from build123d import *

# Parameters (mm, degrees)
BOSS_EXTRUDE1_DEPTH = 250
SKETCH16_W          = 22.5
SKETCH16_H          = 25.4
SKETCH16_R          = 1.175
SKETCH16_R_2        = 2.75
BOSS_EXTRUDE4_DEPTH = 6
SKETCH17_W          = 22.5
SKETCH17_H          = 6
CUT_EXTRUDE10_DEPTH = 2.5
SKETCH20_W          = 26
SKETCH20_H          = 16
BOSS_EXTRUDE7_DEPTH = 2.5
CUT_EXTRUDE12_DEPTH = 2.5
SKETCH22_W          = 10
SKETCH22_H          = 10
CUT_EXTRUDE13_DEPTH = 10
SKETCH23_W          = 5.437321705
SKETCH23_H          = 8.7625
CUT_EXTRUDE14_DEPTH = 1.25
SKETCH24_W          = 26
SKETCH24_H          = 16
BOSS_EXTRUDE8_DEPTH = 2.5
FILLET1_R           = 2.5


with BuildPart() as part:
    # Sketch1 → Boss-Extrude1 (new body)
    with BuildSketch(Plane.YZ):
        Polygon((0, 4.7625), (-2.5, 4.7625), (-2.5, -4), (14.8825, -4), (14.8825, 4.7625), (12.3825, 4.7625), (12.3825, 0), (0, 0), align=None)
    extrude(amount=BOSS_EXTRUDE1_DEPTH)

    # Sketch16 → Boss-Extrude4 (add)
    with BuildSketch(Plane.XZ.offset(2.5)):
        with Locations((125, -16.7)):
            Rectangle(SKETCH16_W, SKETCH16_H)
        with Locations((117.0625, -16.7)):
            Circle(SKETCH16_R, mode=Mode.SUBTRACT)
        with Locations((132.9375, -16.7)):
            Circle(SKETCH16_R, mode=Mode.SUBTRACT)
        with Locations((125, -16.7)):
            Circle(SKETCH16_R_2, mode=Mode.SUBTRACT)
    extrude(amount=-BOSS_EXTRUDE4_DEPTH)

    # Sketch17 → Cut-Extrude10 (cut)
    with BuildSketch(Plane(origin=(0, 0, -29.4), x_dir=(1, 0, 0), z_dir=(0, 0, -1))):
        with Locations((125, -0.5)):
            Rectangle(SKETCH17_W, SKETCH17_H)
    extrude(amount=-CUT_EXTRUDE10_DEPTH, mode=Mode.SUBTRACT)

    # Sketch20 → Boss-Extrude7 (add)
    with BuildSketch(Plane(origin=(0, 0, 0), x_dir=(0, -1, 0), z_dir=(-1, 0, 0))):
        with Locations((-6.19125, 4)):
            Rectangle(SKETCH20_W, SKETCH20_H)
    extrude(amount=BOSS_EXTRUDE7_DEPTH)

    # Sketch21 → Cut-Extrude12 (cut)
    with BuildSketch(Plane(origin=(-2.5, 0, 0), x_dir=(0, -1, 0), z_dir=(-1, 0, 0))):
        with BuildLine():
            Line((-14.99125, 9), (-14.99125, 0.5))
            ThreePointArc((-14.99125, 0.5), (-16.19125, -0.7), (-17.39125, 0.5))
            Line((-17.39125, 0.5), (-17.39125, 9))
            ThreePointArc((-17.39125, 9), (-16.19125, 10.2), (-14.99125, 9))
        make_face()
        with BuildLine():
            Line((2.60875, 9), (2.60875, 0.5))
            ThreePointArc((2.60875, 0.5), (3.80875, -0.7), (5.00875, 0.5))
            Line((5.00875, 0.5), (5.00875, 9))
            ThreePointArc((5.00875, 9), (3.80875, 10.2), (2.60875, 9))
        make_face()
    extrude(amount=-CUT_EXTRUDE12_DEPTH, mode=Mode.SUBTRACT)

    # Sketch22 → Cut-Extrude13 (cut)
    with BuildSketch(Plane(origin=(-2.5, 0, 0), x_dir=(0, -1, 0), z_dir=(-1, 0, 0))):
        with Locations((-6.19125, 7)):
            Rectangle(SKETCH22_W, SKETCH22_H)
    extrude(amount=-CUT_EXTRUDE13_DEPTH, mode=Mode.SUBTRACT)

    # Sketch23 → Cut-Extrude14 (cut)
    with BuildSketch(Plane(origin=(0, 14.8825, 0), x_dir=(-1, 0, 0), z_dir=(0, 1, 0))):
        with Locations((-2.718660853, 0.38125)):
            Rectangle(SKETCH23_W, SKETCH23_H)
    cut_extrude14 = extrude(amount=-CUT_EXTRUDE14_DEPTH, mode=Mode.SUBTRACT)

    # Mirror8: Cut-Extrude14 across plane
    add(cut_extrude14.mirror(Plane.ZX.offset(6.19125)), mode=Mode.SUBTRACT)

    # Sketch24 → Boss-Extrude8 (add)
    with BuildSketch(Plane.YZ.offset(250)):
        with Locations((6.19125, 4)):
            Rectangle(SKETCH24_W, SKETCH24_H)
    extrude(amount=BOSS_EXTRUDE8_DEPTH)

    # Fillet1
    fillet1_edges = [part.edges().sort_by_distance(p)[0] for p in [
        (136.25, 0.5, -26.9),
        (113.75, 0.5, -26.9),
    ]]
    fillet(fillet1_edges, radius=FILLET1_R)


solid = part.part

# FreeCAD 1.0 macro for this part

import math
import FreeCAD as App
import Part
import Sketcher


def edges_at(feature, points):
    """Names of the edges that pass closest to the given points."""
    edges = feature.Shape.Edges
    near = lambda p: min(range(len(edges)), key=lambda i: edges[i].distToShape(Part.Vertex(*p))[0])
    return sorted({f"Edge{near(p) + 1}" for p in points})

doc = App.newDocument("Part")
body = doc.addObject("PartDesign::Body", "Body")

# Sketch on YZ plane
sketch1 = body.newObject("Sketcher::SketchObject", "Sketch")
sketch1.AttachmentSupport = (doc.getObject("YZ_Plane"), [""])
sketch1.MapMode = "FlatFace"
sketch1.addGeometry([
    Part.LineSegment(App.Vector(0, 4.8, 0), App.Vector(-2.5, 4.8, 0)),  # 0
    Part.LineSegment(App.Vector(-2.5, 4.8, 0), App.Vector(-2.5, -4, 0)),  # 1
    Part.LineSegment(App.Vector(-2.5, -4, 0), App.Vector(14.9, -4, 0)),  # 2
    Part.LineSegment(App.Vector(14.9, -4, 0), App.Vector(14.9, 4.8, 0)),  # 3
    Part.LineSegment(App.Vector(14.9, 4.8, 0), App.Vector(12.4, 4.8, 0)),  # 4
    Part.LineSegment(App.Vector(12.4, 4.8, 0), App.Vector(12.4, 0, 0)),  # 5
    Part.LineSegment(App.Vector(12.4, 0, 0), App.Vector(0, 0, 0)),  # 6
    Part.LineSegment(App.Vector(0, 0, 0), App.Vector(0, 4.8, 0)),  # 7
], False)
sketch1.addConstraint([
    Sketcher.Constraint("Coincident", 0, 2, 1, 1),
    Sketcher.Constraint("Coincident", 1, 2, 2, 1),
    Sketcher.Constraint("Coincident", 2, 2, 3, 1),
    Sketcher.Constraint("Coincident", 3, 2, 4, 1),
    Sketcher.Constraint("Coincident", 4, 2, 5, 1),
    Sketcher.Constraint("Coincident", 5, 2, 6, 1),
    Sketcher.Constraint("Coincident", 6, 2, 7, 1),
    Sketcher.Constraint("Coincident", 7, 2, 0, 1),
    Sketcher.Constraint("Horizontal", 0),
    Sketcher.Constraint("Vertical", 1),
    Sketcher.Constraint("Horizontal", 2),
    Sketcher.Constraint("Vertical", 3),
    Sketcher.Constraint("Horizontal", 4),
    Sketcher.Constraint("Vertical", 5),
    Sketcher.Constraint("Horizontal", 6),
    Sketcher.Constraint("Vertical", 7),
    Sketcher.Constraint("Coincident", 6, 2, -1, 1),
    Sketcher.Constraint("Horizontal", 0, 2, 3, 2),
    Sketcher.Constraint("Equal", 0, 4),
    Sketcher.Constraint("DistanceX", 0, 2, 0, 1, 2.5),
    Sketcher.Constraint("DistanceY", 1, 2, -1, 1, 4.0),
    Sketcher.Constraint("DistanceX", 2, 1, 2, 2, 17.3825),
    Sketcher.Constraint("DistanceY", 1, 2, 1, 1, 8.7625),
])
pad1 = body.newObject("PartDesign::Pad", "Pad")
pad1.Profile = sketch1
pad1.Length = 250

# Sketch on XZ plane
sketch2 = body.newObject("Sketcher::SketchObject", "Sketch001")
sketch2.AttachmentSupport = (doc.getObject("XZ_Plane"), [""])
sketch2.MapMode = "FlatFace"
sketch2.AttachmentOffset = App.Placement(App.Vector(0, 0, 2.5), App.Rotation())
sketch2.addGeometry([
    Part.LineSegment(App.Vector(113.8, -4, 0), App.Vector(113.8, -29.4, 0)),  # 0
    Part.LineSegment(App.Vector(113.8, -29.4, 0), App.Vector(136.2, -29.4, 0)),  # 1
    Part.LineSegment(App.Vector(136.2, -29.4, 0), App.Vector(136.2, -4, 0)),  # 2
    Part.LineSegment(App.Vector(136.2, -4, 0), App.Vector(113.8, -4, 0)),  # 3
    Part.Circle(App.Vector(117.1, -16.7, 0), App.Vector(0, 0, 1), 1.2),  # 4
    Part.Circle(App.Vector(125, -16.7, 0), App.Vector(0, 0, 1), 2.8),  # 5
    Part.Circle(App.Vector(132.9, -16.7, 0), App.Vector(0, 0, 1), 1.2),  # 6
], False)
sketch2.addConstraint([
    Sketcher.Constraint("Coincident", 0, 2, 1, 1),
    Sketcher.Constraint("Coincident", 1, 2, 2, 1),
    Sketcher.Constraint("Coincident", 2, 2, 3, 1),
    Sketcher.Constraint("Coincident", 3, 2, 0, 1),
    Sketcher.Constraint("Vertical", 0),
    Sketcher.Constraint("Horizontal", 1),
    Sketcher.Constraint("Vertical", 2),
    Sketcher.Constraint("Horizontal", 3),
    Sketcher.Constraint("Equal", 4, 6),
    Sketcher.Constraint("Horizontal", 4, 3, 5, 3),
    Sketcher.Constraint("Horizontal", 5, 3, 6, 3),
    Sketcher.Constraint("Diameter", 5, 5.5),
    Sketcher.Constraint("Diameter", 4, 2.35),
    Sketcher.Constraint("DistanceX", 1, 1, 1, 2, 22.5),
    Sketcher.Constraint("DistanceY", 0, 2, 0, 1, 25.4),
    Sketcher.Constraint("DistanceX", -1, 1, 5, 3, 125.0),
    Sketcher.Constraint("DistanceY", 2, 2, -1, 1, 4.0),
    Sketcher.Constraint("DistanceY", 4, 3, -1, 1, 16.7),
    Sketcher.Constraint("DistanceX", -1, 1, 0, 2, 113.75),
    Sketcher.Constraint("DistanceX", 4, 3, 6, 3, 15.875),
    Sketcher.Constraint("DistanceX", -1, 1, 4, 3, 117.0625),
])
pad2 = body.newObject("PartDesign::Pad", "Pad001")
pad2.Profile = sketch2
pad2.Length = 6
pad2.Reversed = True

# Sketch on XY plane
sketch3 = body.newObject("Sketcher::SketchObject", "Sketch002")
sketch3.AttachmentSupport = (doc.getObject("XY_Plane"), [""])
sketch3.MapMode = "FlatFace"
sketch3.AttachmentOffset = App.Placement(App.Vector(0, 0, -29.4), App.Rotation())
sketch3.addGeometry([
    Part.LineSegment(App.Vector(114, -2, 0), App.Vector(114, 4, 0)),
    Part.LineSegment(App.Vector(114, 4, 0), App.Vector(136, 4, 0)),
    Part.LineSegment(App.Vector(136, 4, 0), App.Vector(136, -2, 0)),
    Part.LineSegment(App.Vector(136, -2, 0), App.Vector(114, -2, 0)),
], False)
sketch3.addConstraint([
    Sketcher.Constraint("Coincident", 0, 2, 1, 1),
    Sketcher.Constraint("Coincident", 1, 2, 2, 1),
    Sketcher.Constraint("Coincident", 2, 2, 3, 1),
    Sketcher.Constraint("Coincident", 3, 2, 0, 1),
    Sketcher.Constraint("Vertical", 0),
    Sketcher.Constraint("Horizontal", 1),
    Sketcher.Constraint("Vertical", 2),
    Sketcher.Constraint("Horizontal", 3),
    Sketcher.Constraint("DistanceY", 0, 1, 0, 2, 6.0),
    Sketcher.Constraint("DistanceX", 1, 1, 1, 2, 22.5),
    Sketcher.Constraint("DistanceY", -1, 1, 0, 2, 3.5),
    Sketcher.Constraint("DistanceX", -1, 1, 0, 2, 113.75),
])
pocket1 = body.newObject("PartDesign::Pocket", "Pocket")
pocket1.Profile = sketch3
pocket1.Length = 2.5
pocket1.Reversed = True

# Sketch on YZ plane
sketch4 = body.newObject("Sketcher::SketchObject", "Sketch003")
sketch4.AttachmentSupport = (doc.getObject("YZ_Plane"), [""])
sketch4.MapMode = "FlatFace"
sketch4.addGeometry([
    Part.LineSegment(App.Vector(19, 12, 0), App.Vector(19, -4, 0)),
    Part.LineSegment(App.Vector(19, -4, 0), App.Vector(-7, -4, 0)),
    Part.LineSegment(App.Vector(-7, -4, 0), App.Vector(-7, 12, 0)),
    Part.LineSegment(App.Vector(-7, 12, 0), App.Vector(19, 12, 0)),
], False)
sketch4.addConstraint([
    Sketcher.Constraint("Coincident", 0, 2, 1, 1),
    Sketcher.Constraint("Coincident", 1, 2, 2, 1),
    Sketcher.Constraint("Coincident", 2, 2, 3, 1),
    Sketcher.Constraint("Coincident", 3, 2, 0, 1),
    Sketcher.Constraint("Vertical", 0),
    Sketcher.Constraint("Horizontal", 1),
    Sketcher.Constraint("Vertical", 2),
    Sketcher.Constraint("Horizontal", 3),
    Sketcher.Constraint("DistanceX", 1, 2, 1, 1, 26.0),
    Sketcher.Constraint("DistanceY", 0, 2, 0, 1, 16.0),
    Sketcher.Constraint("DistanceY", 0, 2, -1, 1, 4.0),
    Sketcher.Constraint("DistanceX", -1, 1, 0, 2, 19.19125),
])
pad3 = body.newObject("PartDesign::Pad", "Pad002")
pad3.Profile = sketch4
pad3.Length = 2.5
pad3.Reversed = True

# Sketch on YZ plane
sketch5 = body.newObject("Sketcher::SketchObject", "Sketch004")
sketch5.AttachmentSupport = (doc.getObject("YZ_Plane"), [""])
sketch5.MapMode = "FlatFace"
sketch5.AttachmentOffset = App.Placement(App.Vector(0, 0, -2.5), App.Rotation())
sketch5.addGeometry([
    Part.LineSegment(App.Vector(15, 0.5, 0), App.Vector(15, 9, 0)),  # 0
    Part.ArcOfCircle(Part.Circle(App.Vector(16.2, 9, 0), App.Vector(0, 0, 1), 1.2), math.radians(0), math.radians(180)),  # 1
    Part.LineSegment(App.Vector(17.4, 9, 0), App.Vector(17.4, 0.5, 0)),  # 2
    Part.ArcOfCircle(Part.Circle(App.Vector(16.2, 0.5, 0), App.Vector(0, 0, 1), 1.2), math.radians(180), math.radians(360)),  # 3
    Part.LineSegment(App.Vector(-2.6, 9, 0), App.Vector(-2.6, 0.5, 0)),  # 4
    Part.ArcOfCircle(Part.Circle(App.Vector(-3.8, 0.5, 0), App.Vector(0, 0, 1), 1.2), math.radians(180), math.radians(360)),  # 5
    Part.LineSegment(App.Vector(-5, 0.5, 0), App.Vector(-5, 9, 0)),  # 6
    Part.ArcOfCircle(Part.Circle(App.Vector(-3.8, 9, 0), App.Vector(0, 0, 1), 1.2), math.radians(0), math.radians(180)),  # 7
], False)
sketch5.addConstraint([
    Sketcher.Constraint("Tangent", 0, 2, 1, 2),
    Sketcher.Constraint("Tangent", 1, 1, 2, 1),
    Sketcher.Constraint("Tangent", 2, 2, 3, 2),
    Sketcher.Constraint("Tangent", 3, 1, 0, 1),
    Sketcher.Constraint("Tangent", 4, 2, 5, 2),
    Sketcher.Constraint("Tangent", 5, 1, 6, 1),
    Sketcher.Constraint("Tangent", 6, 2, 7, 2),
    Sketcher.Constraint("Tangent", 7, 1, 4, 1),
    Sketcher.Constraint("Vertical", 0),
    Sketcher.Constraint("Vertical", 2),
    Sketcher.Constraint("Vertical", 4),
    Sketcher.Constraint("Vertical", 6),
    Sketcher.Constraint("Equal", 3, 5),
    Sketcher.Constraint("Horizontal", 3, 3, 5, 3),
    Sketcher.Constraint("Horizontal", 1, 3, 7, 3),
    Sketcher.Constraint("Radius", 1, 1.2),
    Sketcher.Constraint("DistanceY", 0, 1, 0, 2, 8.5),
    Sketcher.Constraint("DistanceY", -1, 1, 1, 3, 9.0),
    Sketcher.Constraint("DistanceX", 5, 3, 3, 3, 20.0),
    Sketcher.Constraint("DistanceX", -1, 1, 1, 3, 16.19125),
])
pocket2 = body.newObject("PartDesign::Pocket", "Pocket001")
pocket2.Profile = sketch5
pocket2.Length = 2.5
pocket2.Reversed = True

# Sketch on YZ plane
sketch6 = body.newObject("Sketcher::SketchObject", "Sketch005")
sketch6.AttachmentSupport = (doc.getObject("YZ_Plane"), [""])
sketch6.MapMode = "FlatFace"
sketch6.AttachmentOffset = App.Placement(App.Vector(0, 0, -2.5), App.Rotation())
sketch6.addGeometry([
    Part.LineSegment(App.Vector(11, 12, 0), App.Vector(11, 2, 0)),
    Part.LineSegment(App.Vector(11, 2, 0), App.Vector(1, 2, 0)),
    Part.LineSegment(App.Vector(1, 2, 0), App.Vector(1, 12, 0)),
    Part.LineSegment(App.Vector(1, 12, 0), App.Vector(11, 12, 0)),
], False)
sketch6.addConstraint([
    Sketcher.Constraint("Coincident", 0, 2, 1, 1),
    Sketcher.Constraint("Coincident", 1, 2, 2, 1),
    Sketcher.Constraint("Coincident", 2, 2, 3, 1),
    Sketcher.Constraint("Coincident", 3, 2, 0, 1),
    Sketcher.Constraint("Vertical", 0),
    Sketcher.Constraint("Horizontal", 1),
    Sketcher.Constraint("Vertical", 2),
    Sketcher.Constraint("Horizontal", 3),
    Sketcher.Constraint("Equal", 3, 0),
    Sketcher.Constraint("DistanceX", 1, 2, 1, 1, 10.0),
    Sketcher.Constraint("DistanceY", -1, 1, 0, 2, 2.0),
    Sketcher.Constraint("DistanceX", -1, 1, 0, 2, 11.19125),
])
pocket3 = body.newObject("PartDesign::Pocket", "Pocket002")
pocket3.Profile = sketch6
pocket3.Length = 10
pocket3.Reversed = True

# Sketch on XZ plane
sketch7 = body.newObject("Sketcher::SketchObject", "Sketch006")
sketch7.AttachmentSupport = (doc.getObject("XZ_Plane"), [""])
sketch7.MapMode = "FlatFace"
sketch7.AttachmentOffset = App.Placement(App.Vector(0, 0, -14.8825), App.Rotation())
sketch7.addGeometry([
    Part.LineSegment(App.Vector(5, 5, 0), App.Vector(5, -4, 0)),
    Part.LineSegment(App.Vector(5, -4, 0), App.Vector(0, -4, 0)),
    Part.LineSegment(App.Vector(0, -4, 0), App.Vector(0, 5, 0)),
    Part.LineSegment(App.Vector(0, 5, 0), App.Vector(5, 5, 0)),
], False)
sketch7.addConstraint([
    Sketcher.Constraint("Coincident", 0, 2, 1, 1),
    Sketcher.Constraint("Coincident", 1, 2, 2, 1),
    Sketcher.Constraint("Coincident", 2, 2, 3, 1),
    Sketcher.Constraint("Coincident", 3, 2, 0, 1),
    Sketcher.Constraint("Vertical", 0),
    Sketcher.Constraint("Horizontal", 1),
    Sketcher.Constraint("Vertical", 2),
    Sketcher.Constraint("Horizontal", 3),
    Sketcher.Constraint("PointOnObject", 1, 2, -2),
    Sketcher.Constraint("DistanceY", 0, 2, -1, 1, 4.0),
    Sketcher.Constraint("DistanceY", 0, 2, 0, 1, 8.7625),
    Sketcher.Constraint("DistanceX", 1, 2, 1, 1, 5.437322),
])
pocket4 = body.newObject("PartDesign::Pocket", "Pocket003")
pocket4.Profile = sketch7
pocket4.Length = 1.25
pocket4.Reversed = True
doc.recompute()

datumplane = body.newObject("PartDesign::Plane", "DatumPlane")
datumplane.AttachmentSupport = (doc.getObject("XZ_Plane"), [""])
datumplane.MapMode = "FlatFace"
datumplane.AttachmentOffset = App.Placement(App.Vector(0, 0, -6.19125), App.Rotation())
mirrored = body.newObject("PartDesign::Mirrored", "Mirrored")
mirrored.Originals = [pocket4]
mirrored.MirrorPlane = (datumplane, [""])
body.Tip = mirrored

# Sketch on YZ plane
sketch8 = body.newObject("Sketcher::SketchObject", "Sketch007")
sketch8.AttachmentSupport = (doc.getObject("YZ_Plane"), [""])
sketch8.MapMode = "FlatFace"
sketch8.AttachmentOffset = App.Placement(App.Vector(0, 0, 250), App.Rotation())
sketch8.addGeometry([
    Part.LineSegment(App.Vector(-7, 12, 0), App.Vector(-7, -4, 0)),
    Part.LineSegment(App.Vector(-7, -4, 0), App.Vector(19, -4, 0)),
    Part.LineSegment(App.Vector(19, -4, 0), App.Vector(19, 12, 0)),
    Part.LineSegment(App.Vector(19, 12, 0), App.Vector(-7, 12, 0)),
], False)
sketch8.addConstraint([
    Sketcher.Constraint("Coincident", 0, 2, 1, 1),
    Sketcher.Constraint("Coincident", 1, 2, 2, 1),
    Sketcher.Constraint("Coincident", 2, 2, 3, 1),
    Sketcher.Constraint("Coincident", 3, 2, 0, 1),
    Sketcher.Constraint("Vertical", 0),
    Sketcher.Constraint("Horizontal", 1),
    Sketcher.Constraint("Vertical", 2),
    Sketcher.Constraint("Horizontal", 3),
    Sketcher.Constraint("DistanceX", 1, 1, 1, 2, 26.0),
    Sketcher.Constraint("DistanceY", 0, 2, 0, 1, 16.0),
    Sketcher.Constraint("DistanceY", 0, 2, -1, 1, 4.0),
    Sketcher.Constraint("DistanceX", 0, 2, -1, 1, 6.80875),
])
pad4 = body.newObject("PartDesign::Pad", "Pad003")
pad4.Profile = sketch8
pad4.Length = 2.5
doc.recompute()

fillet = body.newObject("PartDesign::Fillet", "Fillet")
fillet.Base = (pad4, edges_at(pad4, [(136.25, 0.5, -26.9), (113.75, 0.5, -26.9)]))
fillet.Radius = 2.5

doc.recompute()
